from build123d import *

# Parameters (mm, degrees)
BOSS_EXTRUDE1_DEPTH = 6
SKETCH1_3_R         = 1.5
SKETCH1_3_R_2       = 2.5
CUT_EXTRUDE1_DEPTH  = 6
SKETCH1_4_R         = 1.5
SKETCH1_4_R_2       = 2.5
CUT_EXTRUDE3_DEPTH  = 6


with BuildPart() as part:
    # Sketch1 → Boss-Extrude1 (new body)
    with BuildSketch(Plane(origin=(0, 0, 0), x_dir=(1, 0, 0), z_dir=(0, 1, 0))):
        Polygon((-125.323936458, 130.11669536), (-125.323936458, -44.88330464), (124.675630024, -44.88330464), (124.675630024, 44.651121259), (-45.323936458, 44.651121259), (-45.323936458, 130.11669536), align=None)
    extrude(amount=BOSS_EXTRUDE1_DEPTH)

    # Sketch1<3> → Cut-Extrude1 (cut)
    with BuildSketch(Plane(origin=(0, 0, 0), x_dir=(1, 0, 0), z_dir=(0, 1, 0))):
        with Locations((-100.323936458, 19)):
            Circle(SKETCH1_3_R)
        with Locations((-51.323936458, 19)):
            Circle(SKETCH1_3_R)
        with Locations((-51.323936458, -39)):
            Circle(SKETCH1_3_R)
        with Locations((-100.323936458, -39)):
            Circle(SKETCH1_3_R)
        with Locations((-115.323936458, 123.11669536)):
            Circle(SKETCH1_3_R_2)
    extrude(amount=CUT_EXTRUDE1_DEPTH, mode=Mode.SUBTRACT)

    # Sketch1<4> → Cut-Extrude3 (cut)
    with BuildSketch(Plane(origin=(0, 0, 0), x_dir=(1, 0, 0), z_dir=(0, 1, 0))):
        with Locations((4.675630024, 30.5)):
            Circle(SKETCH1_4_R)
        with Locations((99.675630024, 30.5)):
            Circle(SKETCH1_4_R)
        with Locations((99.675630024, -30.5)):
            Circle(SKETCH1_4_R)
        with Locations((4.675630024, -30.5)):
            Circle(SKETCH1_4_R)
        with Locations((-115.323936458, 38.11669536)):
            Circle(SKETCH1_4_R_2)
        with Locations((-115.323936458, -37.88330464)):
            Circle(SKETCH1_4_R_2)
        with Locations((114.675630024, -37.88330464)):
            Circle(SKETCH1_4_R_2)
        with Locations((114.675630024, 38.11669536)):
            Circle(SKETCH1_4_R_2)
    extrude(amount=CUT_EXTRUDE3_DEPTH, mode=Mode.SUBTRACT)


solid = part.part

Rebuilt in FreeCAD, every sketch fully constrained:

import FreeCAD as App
import Part
import Sketcher
from FreeCAD import Vector


def add_polygon(sketch, points):
    """Adds a closed chain of lines whose ends are joined by coincident constraints."""
    first, n = sketch.GeometryCount, len(points)
    for a, b in zip(points, points[1:] + points[:1]):
        sketch.addGeometry(Part.LineSegment(App.Vector(*a, 0), App.Vector(*b, 0)), False)
    for i in range(n):
        sketch.addConstraint(Sketcher.Constraint("Coincident", first + i, 2, first + (i + 1) % n, 1))

doc = App.newDocument("Part")
body = doc.addObject("PartDesign::Body", "Body")

sketch1 = body.newObject("Sketcher::SketchObject", "Sketch")
sketch1.AttachmentSupport = (doc.getObject("XZ_Plane"), [""])
sketch1.MapMode = "FlatFace"
add_polygon(sketch1, [(-125, -130), (-125, 45), (125, 45), (125, -45), (-45, -45), (-45, -130)])
sketch1.addConstraint([
    Sketcher.Constraint("Vertical", 0),
    Sketcher.Constraint("Horizontal", 1),
    Sketcher.Constraint("Vertical", 2),
    Sketcher.Constraint("Horizontal", 3),
    Sketcher.Constraint("Vertical", 4),
    Sketcher.Constraint("Horizontal", 5),
    Sketcher.Constraint("DistanceX", 5, 2, 5, 1, 80.0),
    Sketcher.Constraint("DistanceY", 0, 1, 0, 2, 175.0),
    Sketcher.Constraint("DistanceX", 1, 1, 1, 2, 249.999566),
    Sketcher.Constraint("DistanceY", 2, 2, 2, 1, 89.534426),
    Sketcher.Constraint("DistanceX", -1, 1, 1, 2, 124.67563),
    Sketcher.Constraint("DistanceY", 2, 2, -1, 1, 44.651121),
])
pad1 = body.newObject("PartDesign::Pad", "Pad")
pad1.Profile = sketch1
pad1.Length = 6
pad1.Reversed = True

sketch2 = body.newObject("Sketcher::SketchObject", "Sketch001")
sketch2.AttachmentSupport = (doc.getObject("XZ_Plane"), [""])
sketch2.MapMode = "FlatFace"
sketch2.addGeometry([
    Part.Circle(Vector(-100.3, -19, 0), Vector(0, 0, 1), 1.5),
    Part.Circle(Vector(-51.3, -19, 0), Vector(0, 0, 1), 1.5),
    Part.Circle(Vector(-51.3, 39, 0), Vector(0, 0, 1), 1.5),
    Part.Circle(Vector(-100.3, 39, 0), Vector(0, 0, 1), 1.5),
    Part.Circle(Vector(-115.3, -123.1, 0), Vector(0, 0, 1), 2.5),
], False)
sketch2.addConstraint([
    Sketcher.Constraint("Equal", 0, 1),
    Sketcher.Constraint("Equal", 1, 2),
    Sketcher.Constraint("Equal", 2, 3),
    Sketcher.Constraint("Horizontal", 0, 3, 1, 3),
    Sketcher.Constraint("Horizontal", 2, 3, 3, 3),
    Sketcher.Constraint("Vertical", 1, 3, 2, 3),
    Sketcher.Constraint("Vertical", 0, 3, 3, 3),
    Sketcher.Constraint("Diameter", 0, 3.0),
    Sketcher.Constraint("Diameter", 4, 5.0),
    Sketcher.Constraint("DistanceY", 0, 3, -1, 1, 19.0),
    Sketcher.Constraint("DistanceY", -1, 1, 2, 3, 39.0),
    Sketcher.Constraint("DistanceX", 0, 3, 1, 3, 49.0),
    Sketcher.Constraint("DistanceX", 4, 3, 0, 3, 15.0),
    Sketcher.Constraint("DistanceX", 0, 3, -1, 1, 100.323936),
    Sketcher.Constraint("DistanceY", 4, 3, -1, 1, 123.116695),
])
pocket1 = body.newObject("PartDesign::Pocket", "Pocket")
pocket1.Profile = sketch2
pocket1.Length = 6

sketch3 = body.newObject("Sketcher::SketchObject", "Sketch002")
sketch3.AttachmentSupport = (doc.getObject("XZ_Plane"), [""])
sketch3.MapMode = "FlatFace"
sketch3.addGeometry([
    Part.Circle(Vector(4.7, -30.5, 0), Vector(0, 0, 1), 1.5),
    Part.Circle(Vector(99.7, -30.5, 0), Vector(0, 0, 1), 1.5),
    Part.Circle(Vector(99.7, 30.5, 0), Vector(0, 0, 1), 1.5),
    Part.Circle(Vector(4.7, 30.5, 0), Vector(0, 0, 1), 1.5),
    Part.Circle(Vector(-115.3, -38.1, 0), Vector(0, 0, 1), 2.5),
    Part.Circle(Vector(-115.3, 37.9, 0), Vector(0, 0, 1), 2.5),
    Part.Circle(Vector(114.7, 37.9, 0), Vector(0, 0, 1), 2.5),
    Part.Circle(Vector(114.7, -38.1, 0), Vector(0, 0, 1), 2.5),
], False)
sketch3.addConstraint([
    Sketcher.Constraint("Equal", 0, 1),
    Sketcher.Constraint("Equal", 1, 2),
    Sketcher.Constraint("Equal", 2, 3),
    Sketcher.Constraint("Equal", 4, 5),
    Sketcher.Constraint("Equal", 5, 6),
    Sketcher.Constraint("Equal", 6, 7),
    Sketcher.Constraint("Symmetric", 1, 3, 2, 3, -1),
    Sketcher.Constraint("Symmetric", 0, 3, 3, 3, -1),
    Sketcher.Constraint("Horizontal", 0, 3, 1, 3),
    Sketcher.Constraint("Horizontal", 5, 3, 6, 3),
    Sketcher.Constraint("Horizontal", 4, 3, 7, 3),
    Sketcher.Constraint("Vertical", 4, 3, 5, 3),
    Sketcher.Constraint("Vertical", 6, 3, 7, 3),
    Sketcher.Constraint("Diameter", 0, 3.0),
    Sketcher.Constraint("Diameter", 4, 5.0),
    Sketcher.Constraint("DistanceX", 0, 3, 1, 3, 95.0),
    Sketcher.Constraint("DistanceY", 1, 3, 2, 3, 61.0),
    Sketcher.Constraint("DistanceY", 4, 3, 5, 3, 76.0),
    Sketcher.Constraint("DistanceX", 2, 3, 6, 3, 15.0),
    Sketcher.Constraint("DistanceX", -1, 1, 0, 3, 4.67563),
    Sketcher.Constraint("DistanceX", 4, 3, -1, 1, 115.323936),
    Sketcher.Constraint("DistanceY", 4, 3, -1, 1, 38.116695),
])
pocket2 = body.newObject("PartDesign::Pocket", "Pocket001")
pocket2.Profile = sketch3
pocket2.Length = 6

doc.recompute()
